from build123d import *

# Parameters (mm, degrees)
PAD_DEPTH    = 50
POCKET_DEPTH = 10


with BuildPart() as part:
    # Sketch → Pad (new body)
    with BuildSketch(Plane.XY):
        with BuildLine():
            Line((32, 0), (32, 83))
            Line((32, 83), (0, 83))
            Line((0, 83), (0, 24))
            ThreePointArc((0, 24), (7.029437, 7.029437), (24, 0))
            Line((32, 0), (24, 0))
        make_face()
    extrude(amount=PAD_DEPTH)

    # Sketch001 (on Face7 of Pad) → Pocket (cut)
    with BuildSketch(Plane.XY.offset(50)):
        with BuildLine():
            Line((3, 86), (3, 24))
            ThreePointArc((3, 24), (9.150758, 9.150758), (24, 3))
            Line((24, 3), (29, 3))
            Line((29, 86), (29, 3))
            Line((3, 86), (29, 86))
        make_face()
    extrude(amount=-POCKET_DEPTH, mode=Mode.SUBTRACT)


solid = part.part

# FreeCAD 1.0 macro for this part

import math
import FreeCAD as App
import Part
import Sketcher
Q = App.Units.Quantity

doc = App.newDocument("Part")
body = doc.addObject("PartDesign::Body", "Body")

# Sketch on XY plane
sketch1 = doc.addObject("Sketcher::SketchObject", "Sketch")
body.addObject(sketch1)
sketch1.AttachmentSupport = (doc.XY_Plane, [""])
sketch1.MapMode = "FlatFace"
sketch1.addGeometry(Part.LineSegment(App.Vector(32, 0, 0), App.Vector(32, 83, 0)), False)
sketch1.addGeometry(Part.LineSegment(App.Vector(32, 83, 0), App.Vector(0, 83, 0)), False)
sketch1.addGeometry(Part.LineSegment(App.Vector(0, 83, 0), App.Vector(0, 24, 0)), False)
sketch1.addGeometry(Part.ArcOfCircle(Part.Circle(App.Vector(24, 24, 0), App.Vector(0, 0, 1), 24), math.radians(180), math.radians(270)), False)
sketch1.addGeometry(Part.LineSegment(App.Vector(24, 0, 0), App.Vector(32, 0, 0)), False)
sketch1.addConstraint(Sketcher.Constraint("Coincident", 0, 2, 1, 1))
sketch1.addConstraint(Sketcher.Constraint("Coincident", 1, 2, 2, 1))
sketch1.addConstraint(Sketcher.Constraint("Tangent", 2, 2, 3, 1))
sketch1.addConstraint(Sketcher.Constraint("Tangent", 3, 2, 4, 1))
sketch1.addConstraint(Sketcher.Constraint("Coincident", 4, 2, 0, 1))
sketch1.addConstraint(Sketcher.Constraint("Vertical", 0))
sketch1.addConstraint(Sketcher.Constraint("Horizontal", 1))
sketch1.addConstraint(Sketcher.Constraint("Vertical", 2))
sketch1.addConstraint(Sketcher.Constraint("Horizontal", 4))
sketch1.addConstraint(Sketcher.Constraint("PointOnObject", 1, 2, -2))
sketch1.addConstraint(Sketcher.Constraint("PointOnObject", 3, 2, -1))
sketch1.addConstraint(Sketcher.Constraint("Radius", 3, Q("23.999999 mm")))
sketch1.addConstraint(Sketcher.Constraint("DistanceX", 1, 2, 1, 1, Q("32 mm")))
sketch1.addConstraint(Sketcher.Constraint("DistanceY", 0, 1, 0, 2, Q("83 mm")))
pad1 = doc.addObject("PartDesign::Pad", "Pad")
body.addObject(pad1)
pad1.Profile = sketch1
pad1.Length = 50

# Sketch on XY plane
sketch2 = doc.addObject("Sketcher::SketchObject", "Sketch001")
body.addObject(sketch2)
sketch2.AttachmentSupport = (doc.XY_Plane, [""])
sketch2.MapMode = "FlatFace"
sketch2.AttachmentOffset = App.Placement(App.Vector(0, 0, 50), App.Rotation())
sketch2.addGeometry(Part.LineSegment(App.Vector(3, 86, 0), App.Vector(3, 24, 0)), False)
sketch2.addGeometry(Part.ArcOfCircle(Part.Circle(App.Vector(24, 24, 0), App.Vector(0, 0, 1), 21), math.radians(-180), math.radians(-90)), False)
sketch2.addGeometry(Part.LineSegment(App.Vector(24, 3, 0), App.Vector(29, 3, 0)), False)
sketch2.addGeometry(Part.LineSegment(App.Vector(29, 3, 0), App.Vector(29, 86, 0)), False)
sketch2.addGeometry(Part.LineSegment(App.Vector(29, 86, 0), App.Vector(3, 86, 0)), False)
sketch2.addConstraint(Sketcher.Constraint("Tangent", 0, 2, 1, 1))
sketch2.addConstraint(Sketcher.Constraint("Tangent", 1, 2, 2, 1))
sketch2.addConstraint(Sketcher.Constraint("Coincident", 2, 2, 3, 1))
sketch2.addConstraint(Sketcher.Constraint("Coincident", 3, 2, 4, 1))
sketch2.addConstraint(Sketcher.Constraint("Coincident", 4, 2, 0, 1))
sketch2.addConstraint(Sketcher.Constraint("Vertical", 0))
sketch2.addConstraint(Sketcher.Constraint("Horizontal", 2))
sketch2.addConstraint(Sketcher.Constraint("Vertical", 3))
sketch2.addConstraint(Sketcher.Constraint("Horizontal", 4))
sketch2.addConstraint(Sketcher.Constraint("Radius", 1, Q("21.000001 mm")))
sketch2.addConstraint(Sketcher.Constraint("DistanceX", 2, 1, 2, 2, Q("5 mm")))
sketch2.addConstraint(Sketcher.Constraint("DistanceY", 0, 2, 0, 1, Q("62 mm")))
sketch2.addConstraint(Sketcher.Constraint("DistanceX", -1, 1, 1, 3, Q("24.000001 mm")))
sketch2.addConstraint(Sketcher.Constraint("DistanceY", -1, 1, 1, 3, Q("24.000001 mm")))
pocket1 = doc.addObject("PartDesign::Pocket", "Pocket")
body.addObject(pocket1)
pocket1.Profile = sketch2
pocket1.Length = 10

doc.recompute()
